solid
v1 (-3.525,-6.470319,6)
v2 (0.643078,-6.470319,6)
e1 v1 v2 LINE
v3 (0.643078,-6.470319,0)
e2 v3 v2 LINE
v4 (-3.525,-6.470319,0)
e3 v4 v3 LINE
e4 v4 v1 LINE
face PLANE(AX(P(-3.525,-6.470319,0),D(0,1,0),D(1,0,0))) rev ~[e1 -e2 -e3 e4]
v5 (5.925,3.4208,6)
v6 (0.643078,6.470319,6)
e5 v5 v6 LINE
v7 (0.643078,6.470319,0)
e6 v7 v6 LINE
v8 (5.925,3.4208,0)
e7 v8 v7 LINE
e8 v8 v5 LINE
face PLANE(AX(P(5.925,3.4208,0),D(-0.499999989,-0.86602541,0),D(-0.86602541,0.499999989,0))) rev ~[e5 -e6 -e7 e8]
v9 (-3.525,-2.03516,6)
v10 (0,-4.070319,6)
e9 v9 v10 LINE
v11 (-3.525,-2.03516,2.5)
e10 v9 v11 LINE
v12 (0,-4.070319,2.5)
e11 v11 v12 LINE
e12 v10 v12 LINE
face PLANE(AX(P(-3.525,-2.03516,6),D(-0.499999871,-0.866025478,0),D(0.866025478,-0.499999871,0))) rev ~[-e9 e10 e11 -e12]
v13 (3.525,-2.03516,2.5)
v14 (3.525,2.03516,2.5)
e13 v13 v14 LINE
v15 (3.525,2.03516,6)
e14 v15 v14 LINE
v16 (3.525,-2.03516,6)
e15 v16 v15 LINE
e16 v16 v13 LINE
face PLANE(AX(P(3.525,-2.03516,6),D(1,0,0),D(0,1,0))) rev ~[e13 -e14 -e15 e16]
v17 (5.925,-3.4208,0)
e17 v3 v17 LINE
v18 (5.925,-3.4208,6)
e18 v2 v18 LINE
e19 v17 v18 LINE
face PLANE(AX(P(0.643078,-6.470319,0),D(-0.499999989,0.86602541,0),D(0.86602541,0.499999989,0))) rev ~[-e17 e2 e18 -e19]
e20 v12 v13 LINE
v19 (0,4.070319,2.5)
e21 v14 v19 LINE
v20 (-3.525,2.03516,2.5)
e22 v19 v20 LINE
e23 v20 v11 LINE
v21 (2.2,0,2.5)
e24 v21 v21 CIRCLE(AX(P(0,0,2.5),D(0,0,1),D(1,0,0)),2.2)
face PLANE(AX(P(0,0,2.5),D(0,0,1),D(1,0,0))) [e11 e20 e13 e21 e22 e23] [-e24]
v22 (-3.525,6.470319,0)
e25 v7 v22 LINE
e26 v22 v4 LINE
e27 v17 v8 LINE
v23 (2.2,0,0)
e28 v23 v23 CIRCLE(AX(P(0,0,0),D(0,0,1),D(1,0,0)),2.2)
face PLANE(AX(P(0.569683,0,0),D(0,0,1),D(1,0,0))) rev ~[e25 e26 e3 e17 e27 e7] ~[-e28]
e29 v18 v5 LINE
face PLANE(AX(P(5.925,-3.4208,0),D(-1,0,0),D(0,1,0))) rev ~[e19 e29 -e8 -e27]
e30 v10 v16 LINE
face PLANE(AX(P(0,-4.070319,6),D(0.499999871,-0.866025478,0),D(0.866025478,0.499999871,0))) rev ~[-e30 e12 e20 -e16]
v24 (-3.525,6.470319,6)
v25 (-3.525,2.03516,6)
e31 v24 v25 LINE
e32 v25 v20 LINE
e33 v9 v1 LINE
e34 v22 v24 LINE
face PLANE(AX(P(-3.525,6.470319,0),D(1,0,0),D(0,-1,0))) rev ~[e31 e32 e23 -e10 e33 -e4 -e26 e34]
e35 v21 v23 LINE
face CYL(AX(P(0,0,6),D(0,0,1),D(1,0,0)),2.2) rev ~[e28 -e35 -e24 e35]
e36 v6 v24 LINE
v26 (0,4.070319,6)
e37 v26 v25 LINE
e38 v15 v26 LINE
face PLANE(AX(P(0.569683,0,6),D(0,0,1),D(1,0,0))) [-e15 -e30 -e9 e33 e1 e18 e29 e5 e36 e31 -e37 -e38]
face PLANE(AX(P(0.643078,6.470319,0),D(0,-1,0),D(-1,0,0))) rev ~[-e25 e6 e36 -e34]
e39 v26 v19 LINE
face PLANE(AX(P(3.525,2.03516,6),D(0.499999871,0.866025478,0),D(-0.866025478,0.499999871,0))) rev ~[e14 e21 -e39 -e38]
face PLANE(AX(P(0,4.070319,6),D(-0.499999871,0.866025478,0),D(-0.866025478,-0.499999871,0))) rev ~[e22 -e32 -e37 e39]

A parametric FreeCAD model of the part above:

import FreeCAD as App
import Part
import Sketcher
Q = App.Units.Quantity

doc = App.newDocument("Part")
body = doc.addObject("PartDesign::Body", "Body")

# Sketch on XY plane
sketch1 = body.newObject("Sketcher::SketchObject", "Sketch")
sketch1.AttachmentSupport = (doc.getObject("XY_Plane"), [""])
sketch1.MapMode = "FlatFace"
sketch1.addGeometry([
    Part.LineSegment(App.Vector(-3.5, 6.5, 0), App.Vector(-3.5, -6.5, 0)),  # 0
    Part.LineSegment(App.Vector(-3.5, -6.5, 0), App.Vector(0.6, -6.5, 0)),  # 1
    Part.LineSegment(App.Vector(0.6, -6.5, 0), App.Vector(5.9, -3.4, 0)),  # 2
    Part.LineSegment(App.Vector(5.9, -3.4, 0), App.Vector(5.9, 3.4, 0)),  # 3
    Part.LineSegment(App.Vector(5.9, 3.4, 0), App.Vector(0.6, 6.5, 0)),  # 4
    Part.LineSegment(App.Vector(0.6, 6.5, 0), App.Vector(-3.5, 6.5, 0)),  # 5
], False)
sketch1.addConstraint([
    Sketcher.Constraint("Coincident", 0, 2, 1, 1),
    Sketcher.Constraint("Coincident", 1, 2, 2, 1),
    Sketcher.Constraint("Coincident", 2, 2, 3, 1),
    Sketcher.Constraint("Coincident", 3, 2, 4, 1),
    Sketcher.Constraint("Coincident", 4, 2, 5, 1),
    Sketcher.Constraint("Coincident", 5, 2, 0, 1),
    Sketcher.Constraint("Vertical", 0),
    Sketcher.Constraint("Horizontal", 1),
    Sketcher.Constraint("Vertical", 3),
    Sketcher.Constraint("Horizontal", 5),
    Sketcher.Constraint("Symmetric", 1, 2, 4, 2, -1),
    Sketcher.Constraint("Equal", 2, 4),
    Sketcher.Constraint("Angle", 2, Q("29.999999 deg")),
    Sketcher.Constraint("DistanceX", 0, 2, 2, 2, 9.45),
    Sketcher.Constraint("DistanceY", 3, 1, 3, 2, 6.8416),
    Sketcher.Constraint("DistanceX", 0, 2, -1, 1, 3.525),
    Sketcher.Constraint("Distance", 2, 6.099038),
])
pad1 = body.newObject("PartDesign::Pad", "Pad")
pad1.Profile = sketch1
pad1.Length = 6

# Sketch on XY plane
sketch2 = body.newObject("Sketcher::SketchObject", "Sketch001")
sketch2.AttachmentSupport = (doc.getObject("XY_Plane"), [""])
sketch2.MapMode = "FlatFace"
sketch2.AttachmentOffset = App.Placement(App.Vector(0, 0, 6), App.Rotation())
sketch2.addGeometry(Part.Circle(App.Vector(0, 0, 0), App.Vector(0, 0, 1), 2.2), False)
sketch2.addConstraint([
    Sketcher.Constraint("Coincident", 0, 3, -1, 1),
    Sketcher.Constraint("Diameter", 0, 4.4),
])
pocket1 = body.newObject("PartDesign::Pocket", "Pocket")
pocket1.Profile = sketch2
pocket1.Type = "ThroughAll"

# Sketch on XY plane
sketch3 = body.newObject("Sketcher::SketchObject", "Sketch002")
sketch3.AttachmentSupport = (doc.getObject("XY_Plane"), [""])
sketch3.MapMode = "FlatFace"
sketch3.AttachmentOffset = App.Placement(App.Vector(0, 0, 6), App.Rotation())
sketch3.addGeometry([
    Part.LineSegment(App.Vector(0, -4.1, 0), App.Vector(3.5, -2, 0)),  # 0
    Part.LineSegment(App.Vector(3.5, -2, 0), App.Vector(3.5, 2, 0)),  # 1
    Part.LineSegment(App.Vector(3.5, 2, 0), App.Vector(0, 4.1, 0)),  # 2
    Part.LineSegment(App.Vector(0, 4.1, 0), App.Vector(-3.5, 2, 0)),  # 3
    Part.LineSegment(App.Vector(-3.5, 2, 0), App.Vector(-3.5, -2, 0)),  # 4
    Part.LineSegment(App.Vector(-3.5, -2, 0), App.Vector(0, -4.1, 0)),  # 5
], False)
sketch3.addConstraint([
    Sketcher.Constraint("Coincident", 0, 2, 1, 1),
    Sketcher.Constraint("Coincident", 1, 2, 2, 1),
    Sketcher.Constraint("Coincident", 2, 2, 3, 1),
    Sketcher.Constraint("Coincident", 3, 2, 4, 1),
    Sketcher.Constraint("Coincident", 4, 2, 5, 1),
    Sketcher.Constraint("Coincident", 5, 2, 0, 1),
    Sketcher.Constraint("Vertical", 1),
    Sketcher.Constraint("Vertical", 4),
    Sketcher.Constraint("Symmetric", 0, 2, 3, 2, -1, 1),
    Sketcher.Constraint("Symmetric", 2, 2, 5, 2, -1, 1),
    Sketcher.Constraint("PointOnObject", 2, 2, -2),
    Sketcher.Constraint("Parallel", 2, 5),
    Sketcher.Constraint("Horizontal", 1, 2, 3, 2),
    Sketcher.Constraint("Angle", 0, Q("29.999991 deg")),
    Sketcher.Constraint("DistanceX", 3, 2, 1, 2, 7.05),
    Sketcher.Constraint("DistanceY", 1, 1, 1, 2, 4.07032),
])
pocket2 = body.newObject("PartDesign::Pocket", "Pocket001")
pocket2.Profile = sketch3
pocket2.Length = 3.5

doc.recompute()
